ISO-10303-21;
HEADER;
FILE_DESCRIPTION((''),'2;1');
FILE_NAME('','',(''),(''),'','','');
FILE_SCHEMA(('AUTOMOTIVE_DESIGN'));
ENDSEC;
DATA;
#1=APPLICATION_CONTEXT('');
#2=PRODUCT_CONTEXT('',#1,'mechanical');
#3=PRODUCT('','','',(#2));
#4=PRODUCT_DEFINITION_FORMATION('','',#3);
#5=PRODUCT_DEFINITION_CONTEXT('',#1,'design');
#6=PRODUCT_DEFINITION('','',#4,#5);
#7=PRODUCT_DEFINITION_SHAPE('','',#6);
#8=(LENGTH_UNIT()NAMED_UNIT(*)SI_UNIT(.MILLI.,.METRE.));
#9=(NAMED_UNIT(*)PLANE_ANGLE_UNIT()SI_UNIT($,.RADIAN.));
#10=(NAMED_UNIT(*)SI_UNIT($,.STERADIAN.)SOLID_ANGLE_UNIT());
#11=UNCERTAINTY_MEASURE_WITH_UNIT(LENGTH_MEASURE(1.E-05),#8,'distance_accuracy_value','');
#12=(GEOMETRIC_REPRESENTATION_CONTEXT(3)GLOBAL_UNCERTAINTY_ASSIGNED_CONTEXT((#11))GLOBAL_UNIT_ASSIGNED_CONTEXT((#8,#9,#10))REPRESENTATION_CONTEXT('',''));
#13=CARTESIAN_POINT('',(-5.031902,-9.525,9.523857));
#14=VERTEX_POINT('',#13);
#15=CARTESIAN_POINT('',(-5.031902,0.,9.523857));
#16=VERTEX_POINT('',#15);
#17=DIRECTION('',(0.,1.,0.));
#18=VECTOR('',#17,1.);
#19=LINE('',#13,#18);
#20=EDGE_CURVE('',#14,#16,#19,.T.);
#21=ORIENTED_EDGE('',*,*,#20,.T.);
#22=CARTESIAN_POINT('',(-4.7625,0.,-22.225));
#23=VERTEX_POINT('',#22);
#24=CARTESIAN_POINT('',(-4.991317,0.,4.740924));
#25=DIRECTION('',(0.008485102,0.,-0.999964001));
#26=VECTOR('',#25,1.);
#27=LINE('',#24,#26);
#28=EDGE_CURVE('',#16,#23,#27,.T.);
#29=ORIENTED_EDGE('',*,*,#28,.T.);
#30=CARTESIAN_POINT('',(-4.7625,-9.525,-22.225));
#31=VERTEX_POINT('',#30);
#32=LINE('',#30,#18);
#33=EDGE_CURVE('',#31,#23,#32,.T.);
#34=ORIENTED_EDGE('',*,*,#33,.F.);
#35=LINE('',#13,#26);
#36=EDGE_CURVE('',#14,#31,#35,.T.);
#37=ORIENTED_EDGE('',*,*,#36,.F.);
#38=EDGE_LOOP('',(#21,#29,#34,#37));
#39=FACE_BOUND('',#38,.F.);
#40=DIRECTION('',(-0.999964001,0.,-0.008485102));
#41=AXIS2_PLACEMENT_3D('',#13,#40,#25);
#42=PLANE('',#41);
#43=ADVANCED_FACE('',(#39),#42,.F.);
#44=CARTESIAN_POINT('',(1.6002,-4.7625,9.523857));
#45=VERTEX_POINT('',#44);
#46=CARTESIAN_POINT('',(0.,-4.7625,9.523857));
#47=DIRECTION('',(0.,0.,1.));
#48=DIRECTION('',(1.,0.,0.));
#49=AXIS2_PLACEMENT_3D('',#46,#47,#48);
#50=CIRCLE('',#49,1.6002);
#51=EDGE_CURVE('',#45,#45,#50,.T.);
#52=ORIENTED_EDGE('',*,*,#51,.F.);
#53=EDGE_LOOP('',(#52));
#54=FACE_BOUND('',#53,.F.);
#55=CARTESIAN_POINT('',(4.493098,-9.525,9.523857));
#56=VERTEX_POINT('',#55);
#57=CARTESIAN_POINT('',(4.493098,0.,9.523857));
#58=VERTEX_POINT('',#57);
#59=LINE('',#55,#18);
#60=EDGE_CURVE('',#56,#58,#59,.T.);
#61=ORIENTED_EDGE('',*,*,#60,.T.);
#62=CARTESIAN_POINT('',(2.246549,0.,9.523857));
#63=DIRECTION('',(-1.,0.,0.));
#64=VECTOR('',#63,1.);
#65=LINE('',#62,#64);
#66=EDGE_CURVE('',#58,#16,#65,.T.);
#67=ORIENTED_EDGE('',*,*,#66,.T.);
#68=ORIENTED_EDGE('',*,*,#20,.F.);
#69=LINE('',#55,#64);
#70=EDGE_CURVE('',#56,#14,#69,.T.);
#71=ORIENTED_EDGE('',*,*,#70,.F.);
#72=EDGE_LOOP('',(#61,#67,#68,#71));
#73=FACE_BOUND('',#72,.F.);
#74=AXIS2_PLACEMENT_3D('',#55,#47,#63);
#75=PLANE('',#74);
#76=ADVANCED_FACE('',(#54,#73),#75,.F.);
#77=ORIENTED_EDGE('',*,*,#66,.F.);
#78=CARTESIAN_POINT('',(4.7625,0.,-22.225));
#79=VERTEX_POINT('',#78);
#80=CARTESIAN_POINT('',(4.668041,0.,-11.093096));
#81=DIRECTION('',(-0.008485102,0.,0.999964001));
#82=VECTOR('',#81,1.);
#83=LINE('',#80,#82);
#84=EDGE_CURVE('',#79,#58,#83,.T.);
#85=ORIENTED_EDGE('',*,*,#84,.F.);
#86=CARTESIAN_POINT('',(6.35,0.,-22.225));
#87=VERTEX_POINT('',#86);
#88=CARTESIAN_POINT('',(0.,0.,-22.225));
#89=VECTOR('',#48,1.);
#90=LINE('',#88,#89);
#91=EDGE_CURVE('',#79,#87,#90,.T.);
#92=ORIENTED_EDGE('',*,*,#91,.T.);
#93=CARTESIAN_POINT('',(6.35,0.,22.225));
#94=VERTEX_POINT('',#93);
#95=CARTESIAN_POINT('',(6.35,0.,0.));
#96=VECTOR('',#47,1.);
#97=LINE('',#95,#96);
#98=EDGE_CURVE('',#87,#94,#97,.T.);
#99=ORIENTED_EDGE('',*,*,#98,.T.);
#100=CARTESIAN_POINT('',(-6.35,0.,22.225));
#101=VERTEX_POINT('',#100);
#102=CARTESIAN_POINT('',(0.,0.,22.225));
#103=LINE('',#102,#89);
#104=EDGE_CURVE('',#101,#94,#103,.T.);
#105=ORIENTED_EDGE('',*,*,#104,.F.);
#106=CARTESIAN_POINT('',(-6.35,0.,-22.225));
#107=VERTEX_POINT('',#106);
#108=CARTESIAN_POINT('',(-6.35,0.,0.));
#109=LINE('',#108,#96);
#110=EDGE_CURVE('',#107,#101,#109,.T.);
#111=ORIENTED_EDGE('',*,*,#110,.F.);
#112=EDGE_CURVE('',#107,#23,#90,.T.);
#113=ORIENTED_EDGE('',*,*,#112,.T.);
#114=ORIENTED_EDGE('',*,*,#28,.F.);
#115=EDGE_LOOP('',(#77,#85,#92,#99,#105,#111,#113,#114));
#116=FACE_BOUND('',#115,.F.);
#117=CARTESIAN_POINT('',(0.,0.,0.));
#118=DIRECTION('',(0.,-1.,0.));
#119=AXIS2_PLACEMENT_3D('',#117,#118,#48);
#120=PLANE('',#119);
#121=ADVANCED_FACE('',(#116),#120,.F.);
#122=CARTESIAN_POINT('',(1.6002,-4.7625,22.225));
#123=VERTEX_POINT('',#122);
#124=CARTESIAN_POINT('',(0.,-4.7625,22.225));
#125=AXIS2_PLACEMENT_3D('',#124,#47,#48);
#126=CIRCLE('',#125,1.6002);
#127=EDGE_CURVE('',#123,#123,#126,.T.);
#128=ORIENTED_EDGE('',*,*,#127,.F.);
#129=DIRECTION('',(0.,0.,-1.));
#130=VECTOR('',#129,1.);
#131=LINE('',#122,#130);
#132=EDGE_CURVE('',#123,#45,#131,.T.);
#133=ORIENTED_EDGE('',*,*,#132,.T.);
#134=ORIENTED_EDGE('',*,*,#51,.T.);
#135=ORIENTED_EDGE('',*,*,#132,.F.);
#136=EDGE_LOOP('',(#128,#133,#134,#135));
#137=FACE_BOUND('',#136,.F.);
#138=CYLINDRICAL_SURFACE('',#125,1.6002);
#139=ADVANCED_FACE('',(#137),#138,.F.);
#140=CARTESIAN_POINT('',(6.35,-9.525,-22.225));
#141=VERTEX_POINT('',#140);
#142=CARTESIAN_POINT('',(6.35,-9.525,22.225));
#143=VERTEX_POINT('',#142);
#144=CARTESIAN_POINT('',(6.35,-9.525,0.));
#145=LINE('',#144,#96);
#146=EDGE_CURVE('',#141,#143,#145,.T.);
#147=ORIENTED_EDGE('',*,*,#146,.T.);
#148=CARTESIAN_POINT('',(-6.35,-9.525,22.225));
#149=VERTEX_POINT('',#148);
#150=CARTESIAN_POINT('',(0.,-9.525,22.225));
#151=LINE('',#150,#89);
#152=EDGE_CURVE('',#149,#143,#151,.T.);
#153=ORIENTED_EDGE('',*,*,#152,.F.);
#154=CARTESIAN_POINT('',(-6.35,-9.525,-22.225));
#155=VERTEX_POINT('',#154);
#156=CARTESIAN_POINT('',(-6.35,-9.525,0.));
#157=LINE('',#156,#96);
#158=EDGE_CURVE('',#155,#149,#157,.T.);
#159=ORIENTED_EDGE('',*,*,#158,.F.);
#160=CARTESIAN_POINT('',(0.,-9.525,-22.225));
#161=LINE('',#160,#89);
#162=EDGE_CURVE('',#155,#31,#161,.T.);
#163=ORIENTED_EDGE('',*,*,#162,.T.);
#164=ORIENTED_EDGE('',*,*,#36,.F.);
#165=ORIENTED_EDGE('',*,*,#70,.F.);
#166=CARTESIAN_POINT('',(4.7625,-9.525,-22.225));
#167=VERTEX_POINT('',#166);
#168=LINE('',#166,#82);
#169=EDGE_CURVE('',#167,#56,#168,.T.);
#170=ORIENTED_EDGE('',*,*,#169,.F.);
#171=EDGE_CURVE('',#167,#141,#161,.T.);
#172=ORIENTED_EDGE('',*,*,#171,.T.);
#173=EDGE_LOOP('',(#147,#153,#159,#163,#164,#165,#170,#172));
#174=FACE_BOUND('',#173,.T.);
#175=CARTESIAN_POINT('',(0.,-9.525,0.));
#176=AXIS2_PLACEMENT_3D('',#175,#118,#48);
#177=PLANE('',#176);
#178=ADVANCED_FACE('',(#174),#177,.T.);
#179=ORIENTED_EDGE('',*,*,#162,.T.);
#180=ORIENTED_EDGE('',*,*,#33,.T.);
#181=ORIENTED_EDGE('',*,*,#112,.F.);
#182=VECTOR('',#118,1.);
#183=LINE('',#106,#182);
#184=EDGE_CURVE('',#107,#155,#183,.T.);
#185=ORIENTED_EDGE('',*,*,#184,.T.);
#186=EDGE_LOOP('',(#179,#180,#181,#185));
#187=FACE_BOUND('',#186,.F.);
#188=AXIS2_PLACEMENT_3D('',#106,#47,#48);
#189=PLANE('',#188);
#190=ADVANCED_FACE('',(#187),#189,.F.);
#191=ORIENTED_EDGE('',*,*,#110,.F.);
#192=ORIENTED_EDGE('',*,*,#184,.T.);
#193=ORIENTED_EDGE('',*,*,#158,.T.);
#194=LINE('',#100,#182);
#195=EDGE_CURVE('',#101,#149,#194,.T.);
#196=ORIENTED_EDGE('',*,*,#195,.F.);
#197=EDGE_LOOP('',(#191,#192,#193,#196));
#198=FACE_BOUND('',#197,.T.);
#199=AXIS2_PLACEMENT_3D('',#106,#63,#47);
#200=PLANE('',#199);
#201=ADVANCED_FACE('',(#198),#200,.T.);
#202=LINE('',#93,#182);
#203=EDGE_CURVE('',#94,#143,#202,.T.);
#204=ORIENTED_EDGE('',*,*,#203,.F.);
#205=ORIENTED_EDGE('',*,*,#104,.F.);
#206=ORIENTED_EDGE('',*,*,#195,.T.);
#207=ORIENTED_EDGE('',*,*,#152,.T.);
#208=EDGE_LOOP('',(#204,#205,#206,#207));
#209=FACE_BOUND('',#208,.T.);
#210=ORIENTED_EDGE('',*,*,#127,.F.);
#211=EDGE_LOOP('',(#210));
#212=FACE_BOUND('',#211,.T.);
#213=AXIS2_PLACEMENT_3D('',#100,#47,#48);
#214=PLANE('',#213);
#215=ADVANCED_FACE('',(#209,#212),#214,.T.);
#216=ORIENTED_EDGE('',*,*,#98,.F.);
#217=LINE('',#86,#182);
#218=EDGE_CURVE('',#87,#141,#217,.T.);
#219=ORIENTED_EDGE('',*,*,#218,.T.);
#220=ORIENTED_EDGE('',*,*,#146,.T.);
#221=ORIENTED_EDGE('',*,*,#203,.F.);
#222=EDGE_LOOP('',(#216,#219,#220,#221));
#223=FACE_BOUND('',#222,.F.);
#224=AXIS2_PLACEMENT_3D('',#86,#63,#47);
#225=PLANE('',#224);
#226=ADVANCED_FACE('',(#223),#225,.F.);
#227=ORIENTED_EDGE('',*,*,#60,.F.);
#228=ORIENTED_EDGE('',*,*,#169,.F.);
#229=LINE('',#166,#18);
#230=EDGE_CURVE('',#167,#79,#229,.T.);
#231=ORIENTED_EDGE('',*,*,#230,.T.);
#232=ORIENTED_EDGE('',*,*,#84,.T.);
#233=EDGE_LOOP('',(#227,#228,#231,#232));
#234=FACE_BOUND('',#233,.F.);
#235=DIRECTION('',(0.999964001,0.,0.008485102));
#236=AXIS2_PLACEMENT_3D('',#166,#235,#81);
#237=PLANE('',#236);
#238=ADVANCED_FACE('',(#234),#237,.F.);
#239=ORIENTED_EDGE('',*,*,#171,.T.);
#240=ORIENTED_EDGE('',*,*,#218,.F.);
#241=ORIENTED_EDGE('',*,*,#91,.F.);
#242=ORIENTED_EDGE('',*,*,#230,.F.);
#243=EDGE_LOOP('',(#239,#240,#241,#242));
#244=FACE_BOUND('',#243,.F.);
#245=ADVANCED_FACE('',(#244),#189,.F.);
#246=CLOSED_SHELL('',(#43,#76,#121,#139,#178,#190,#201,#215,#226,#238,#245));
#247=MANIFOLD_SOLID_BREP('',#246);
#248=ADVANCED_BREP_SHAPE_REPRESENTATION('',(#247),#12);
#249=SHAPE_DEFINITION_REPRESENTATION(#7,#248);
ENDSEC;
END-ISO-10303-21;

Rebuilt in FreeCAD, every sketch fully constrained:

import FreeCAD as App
import Part
import Sketcher

V = App.Vector
Q = App.Units.Quantity


def add_polygon(sketch, points):
    """Adds a closed chain of lines whose ends are joined by coincident constraints."""
    first, n = sketch.GeometryCount, len(points)
    for a, b in zip(points, points[1:] + points[:1]):
        sketch.addGeometry(Part.LineSegment(App.Vector(*a, 0), App.Vector(*b, 0)), False)
    for i in range(n):
        sketch.addConstraint(Sketcher.Constraint("Coincident", first + i, 2, first + (i + 1) % n, 1))

doc = App.newDocument("Part")
body = doc.addObject("PartDesign::Body", "Body")

# Sketch on XZ plane
sketch1 = body.newObject("Sketcher::SketchObject", "Sketch")
sketch1.AttachmentSupport = (doc.getObject("XZ_Plane"), [""])
sketch1.MapMode = "FlatFace"
add_polygon(sketch1, [(-6, 22), (-6, -22), (6, -22), (6, 22)])  # lines 0-3
sketch1.addConstraint([
    Sketcher.Constraint("Vertical", 0),
    Sketcher.Constraint("Horizontal", 1),
    Sketcher.Constraint("Vertical", 2),
    Sketcher.Constraint("Horizontal", 3),
    Sketcher.Constraint("Symmetric", 0, 2, 2, 2, -1, 1),
    Sketcher.Constraint("DistanceX", 1, 1, 1, 2, Q("0.5 in")),
    Sketcher.Constraint("DistanceY", 0, 2, 0, 1, Q("1.75 in")),
])
pad1 = body.newObject("PartDesign::Pad", "Pad")
pad1.Profile = sketch1
pad1.Length = Q("0.375 in")

# Sketch on XY plane
sketch2 = body.newObject("Sketcher::SketchObject", "Sketch001")
sketch2.AttachmentSupport = (doc.getObject("XY_Plane"), [""])
sketch2.MapMode = "FlatFace"
sketch2.AttachmentOffset = App.Placement(V(0, 0, 0.875 * 25.4), App.Rotation())
sketch2.addGeometry(Part.Circle(V(0, -4.8, 0), V(0, 0, 1), 1.6), False)
sketch2.addConstraint([
    Sketcher.Constraint("PointOnObject", 0, 3, -2),
    Sketcher.Constraint("Diameter", 0, Q("0.126 in")),
    Sketcher.Constraint("DistanceY", 0, 3, -1, 1, Q("0.1875 in")),
])
pocket1 = body.newObject("PartDesign::Pocket", "Pocket")
pocket1.Profile = sketch2
pocket1.Length = Q("1 in")

# Sketch on XZ plane
sketch3 = body.newObject("Sketcher::SketchObject", "Sketch002")
sketch3.AttachmentSupport = (doc.getObject("XZ_Plane"), [""])
sketch3.MapMode = "FlatFace"
sketch3.AttachmentOffset = App.Placement(V(0, 0, 0.375 * 25.4), App.Rotation())
add_polygon(sketch3, [(5, -22), (4, 10), (-5, 10), (-5, -22)])  # lines 0-3
sketch3.addConstraint([
    Sketcher.Constraint("Horizontal", 1),
    Sketcher.Constraint("Horizontal", 3),
    Sketcher.Constraint("Parallel", 0, 2),
    Sketcher.Constraint("Distance", 0, Q("1.25 in")),
    Sketcher.Constraint("DistanceX", 1, 2, 1, 1, Q("0.375 in")),
    Sketcher.Constraint("DistanceX", 2, 2, -1, 1, Q("0.1875 in")),
    Sketcher.Constraint("DistanceY", 2, 2, -1, 1, Q("0.875 in")),
    Sketcher.Constraint("DistanceX", 1, 2, -1, 1, 5.031902),
])
pocket2 = body.newObject("PartDesign::Pocket", "Pocket001")
pocket2.Profile = sketch3
pocket2.Length = Q("1 in")

doc.recompute()
